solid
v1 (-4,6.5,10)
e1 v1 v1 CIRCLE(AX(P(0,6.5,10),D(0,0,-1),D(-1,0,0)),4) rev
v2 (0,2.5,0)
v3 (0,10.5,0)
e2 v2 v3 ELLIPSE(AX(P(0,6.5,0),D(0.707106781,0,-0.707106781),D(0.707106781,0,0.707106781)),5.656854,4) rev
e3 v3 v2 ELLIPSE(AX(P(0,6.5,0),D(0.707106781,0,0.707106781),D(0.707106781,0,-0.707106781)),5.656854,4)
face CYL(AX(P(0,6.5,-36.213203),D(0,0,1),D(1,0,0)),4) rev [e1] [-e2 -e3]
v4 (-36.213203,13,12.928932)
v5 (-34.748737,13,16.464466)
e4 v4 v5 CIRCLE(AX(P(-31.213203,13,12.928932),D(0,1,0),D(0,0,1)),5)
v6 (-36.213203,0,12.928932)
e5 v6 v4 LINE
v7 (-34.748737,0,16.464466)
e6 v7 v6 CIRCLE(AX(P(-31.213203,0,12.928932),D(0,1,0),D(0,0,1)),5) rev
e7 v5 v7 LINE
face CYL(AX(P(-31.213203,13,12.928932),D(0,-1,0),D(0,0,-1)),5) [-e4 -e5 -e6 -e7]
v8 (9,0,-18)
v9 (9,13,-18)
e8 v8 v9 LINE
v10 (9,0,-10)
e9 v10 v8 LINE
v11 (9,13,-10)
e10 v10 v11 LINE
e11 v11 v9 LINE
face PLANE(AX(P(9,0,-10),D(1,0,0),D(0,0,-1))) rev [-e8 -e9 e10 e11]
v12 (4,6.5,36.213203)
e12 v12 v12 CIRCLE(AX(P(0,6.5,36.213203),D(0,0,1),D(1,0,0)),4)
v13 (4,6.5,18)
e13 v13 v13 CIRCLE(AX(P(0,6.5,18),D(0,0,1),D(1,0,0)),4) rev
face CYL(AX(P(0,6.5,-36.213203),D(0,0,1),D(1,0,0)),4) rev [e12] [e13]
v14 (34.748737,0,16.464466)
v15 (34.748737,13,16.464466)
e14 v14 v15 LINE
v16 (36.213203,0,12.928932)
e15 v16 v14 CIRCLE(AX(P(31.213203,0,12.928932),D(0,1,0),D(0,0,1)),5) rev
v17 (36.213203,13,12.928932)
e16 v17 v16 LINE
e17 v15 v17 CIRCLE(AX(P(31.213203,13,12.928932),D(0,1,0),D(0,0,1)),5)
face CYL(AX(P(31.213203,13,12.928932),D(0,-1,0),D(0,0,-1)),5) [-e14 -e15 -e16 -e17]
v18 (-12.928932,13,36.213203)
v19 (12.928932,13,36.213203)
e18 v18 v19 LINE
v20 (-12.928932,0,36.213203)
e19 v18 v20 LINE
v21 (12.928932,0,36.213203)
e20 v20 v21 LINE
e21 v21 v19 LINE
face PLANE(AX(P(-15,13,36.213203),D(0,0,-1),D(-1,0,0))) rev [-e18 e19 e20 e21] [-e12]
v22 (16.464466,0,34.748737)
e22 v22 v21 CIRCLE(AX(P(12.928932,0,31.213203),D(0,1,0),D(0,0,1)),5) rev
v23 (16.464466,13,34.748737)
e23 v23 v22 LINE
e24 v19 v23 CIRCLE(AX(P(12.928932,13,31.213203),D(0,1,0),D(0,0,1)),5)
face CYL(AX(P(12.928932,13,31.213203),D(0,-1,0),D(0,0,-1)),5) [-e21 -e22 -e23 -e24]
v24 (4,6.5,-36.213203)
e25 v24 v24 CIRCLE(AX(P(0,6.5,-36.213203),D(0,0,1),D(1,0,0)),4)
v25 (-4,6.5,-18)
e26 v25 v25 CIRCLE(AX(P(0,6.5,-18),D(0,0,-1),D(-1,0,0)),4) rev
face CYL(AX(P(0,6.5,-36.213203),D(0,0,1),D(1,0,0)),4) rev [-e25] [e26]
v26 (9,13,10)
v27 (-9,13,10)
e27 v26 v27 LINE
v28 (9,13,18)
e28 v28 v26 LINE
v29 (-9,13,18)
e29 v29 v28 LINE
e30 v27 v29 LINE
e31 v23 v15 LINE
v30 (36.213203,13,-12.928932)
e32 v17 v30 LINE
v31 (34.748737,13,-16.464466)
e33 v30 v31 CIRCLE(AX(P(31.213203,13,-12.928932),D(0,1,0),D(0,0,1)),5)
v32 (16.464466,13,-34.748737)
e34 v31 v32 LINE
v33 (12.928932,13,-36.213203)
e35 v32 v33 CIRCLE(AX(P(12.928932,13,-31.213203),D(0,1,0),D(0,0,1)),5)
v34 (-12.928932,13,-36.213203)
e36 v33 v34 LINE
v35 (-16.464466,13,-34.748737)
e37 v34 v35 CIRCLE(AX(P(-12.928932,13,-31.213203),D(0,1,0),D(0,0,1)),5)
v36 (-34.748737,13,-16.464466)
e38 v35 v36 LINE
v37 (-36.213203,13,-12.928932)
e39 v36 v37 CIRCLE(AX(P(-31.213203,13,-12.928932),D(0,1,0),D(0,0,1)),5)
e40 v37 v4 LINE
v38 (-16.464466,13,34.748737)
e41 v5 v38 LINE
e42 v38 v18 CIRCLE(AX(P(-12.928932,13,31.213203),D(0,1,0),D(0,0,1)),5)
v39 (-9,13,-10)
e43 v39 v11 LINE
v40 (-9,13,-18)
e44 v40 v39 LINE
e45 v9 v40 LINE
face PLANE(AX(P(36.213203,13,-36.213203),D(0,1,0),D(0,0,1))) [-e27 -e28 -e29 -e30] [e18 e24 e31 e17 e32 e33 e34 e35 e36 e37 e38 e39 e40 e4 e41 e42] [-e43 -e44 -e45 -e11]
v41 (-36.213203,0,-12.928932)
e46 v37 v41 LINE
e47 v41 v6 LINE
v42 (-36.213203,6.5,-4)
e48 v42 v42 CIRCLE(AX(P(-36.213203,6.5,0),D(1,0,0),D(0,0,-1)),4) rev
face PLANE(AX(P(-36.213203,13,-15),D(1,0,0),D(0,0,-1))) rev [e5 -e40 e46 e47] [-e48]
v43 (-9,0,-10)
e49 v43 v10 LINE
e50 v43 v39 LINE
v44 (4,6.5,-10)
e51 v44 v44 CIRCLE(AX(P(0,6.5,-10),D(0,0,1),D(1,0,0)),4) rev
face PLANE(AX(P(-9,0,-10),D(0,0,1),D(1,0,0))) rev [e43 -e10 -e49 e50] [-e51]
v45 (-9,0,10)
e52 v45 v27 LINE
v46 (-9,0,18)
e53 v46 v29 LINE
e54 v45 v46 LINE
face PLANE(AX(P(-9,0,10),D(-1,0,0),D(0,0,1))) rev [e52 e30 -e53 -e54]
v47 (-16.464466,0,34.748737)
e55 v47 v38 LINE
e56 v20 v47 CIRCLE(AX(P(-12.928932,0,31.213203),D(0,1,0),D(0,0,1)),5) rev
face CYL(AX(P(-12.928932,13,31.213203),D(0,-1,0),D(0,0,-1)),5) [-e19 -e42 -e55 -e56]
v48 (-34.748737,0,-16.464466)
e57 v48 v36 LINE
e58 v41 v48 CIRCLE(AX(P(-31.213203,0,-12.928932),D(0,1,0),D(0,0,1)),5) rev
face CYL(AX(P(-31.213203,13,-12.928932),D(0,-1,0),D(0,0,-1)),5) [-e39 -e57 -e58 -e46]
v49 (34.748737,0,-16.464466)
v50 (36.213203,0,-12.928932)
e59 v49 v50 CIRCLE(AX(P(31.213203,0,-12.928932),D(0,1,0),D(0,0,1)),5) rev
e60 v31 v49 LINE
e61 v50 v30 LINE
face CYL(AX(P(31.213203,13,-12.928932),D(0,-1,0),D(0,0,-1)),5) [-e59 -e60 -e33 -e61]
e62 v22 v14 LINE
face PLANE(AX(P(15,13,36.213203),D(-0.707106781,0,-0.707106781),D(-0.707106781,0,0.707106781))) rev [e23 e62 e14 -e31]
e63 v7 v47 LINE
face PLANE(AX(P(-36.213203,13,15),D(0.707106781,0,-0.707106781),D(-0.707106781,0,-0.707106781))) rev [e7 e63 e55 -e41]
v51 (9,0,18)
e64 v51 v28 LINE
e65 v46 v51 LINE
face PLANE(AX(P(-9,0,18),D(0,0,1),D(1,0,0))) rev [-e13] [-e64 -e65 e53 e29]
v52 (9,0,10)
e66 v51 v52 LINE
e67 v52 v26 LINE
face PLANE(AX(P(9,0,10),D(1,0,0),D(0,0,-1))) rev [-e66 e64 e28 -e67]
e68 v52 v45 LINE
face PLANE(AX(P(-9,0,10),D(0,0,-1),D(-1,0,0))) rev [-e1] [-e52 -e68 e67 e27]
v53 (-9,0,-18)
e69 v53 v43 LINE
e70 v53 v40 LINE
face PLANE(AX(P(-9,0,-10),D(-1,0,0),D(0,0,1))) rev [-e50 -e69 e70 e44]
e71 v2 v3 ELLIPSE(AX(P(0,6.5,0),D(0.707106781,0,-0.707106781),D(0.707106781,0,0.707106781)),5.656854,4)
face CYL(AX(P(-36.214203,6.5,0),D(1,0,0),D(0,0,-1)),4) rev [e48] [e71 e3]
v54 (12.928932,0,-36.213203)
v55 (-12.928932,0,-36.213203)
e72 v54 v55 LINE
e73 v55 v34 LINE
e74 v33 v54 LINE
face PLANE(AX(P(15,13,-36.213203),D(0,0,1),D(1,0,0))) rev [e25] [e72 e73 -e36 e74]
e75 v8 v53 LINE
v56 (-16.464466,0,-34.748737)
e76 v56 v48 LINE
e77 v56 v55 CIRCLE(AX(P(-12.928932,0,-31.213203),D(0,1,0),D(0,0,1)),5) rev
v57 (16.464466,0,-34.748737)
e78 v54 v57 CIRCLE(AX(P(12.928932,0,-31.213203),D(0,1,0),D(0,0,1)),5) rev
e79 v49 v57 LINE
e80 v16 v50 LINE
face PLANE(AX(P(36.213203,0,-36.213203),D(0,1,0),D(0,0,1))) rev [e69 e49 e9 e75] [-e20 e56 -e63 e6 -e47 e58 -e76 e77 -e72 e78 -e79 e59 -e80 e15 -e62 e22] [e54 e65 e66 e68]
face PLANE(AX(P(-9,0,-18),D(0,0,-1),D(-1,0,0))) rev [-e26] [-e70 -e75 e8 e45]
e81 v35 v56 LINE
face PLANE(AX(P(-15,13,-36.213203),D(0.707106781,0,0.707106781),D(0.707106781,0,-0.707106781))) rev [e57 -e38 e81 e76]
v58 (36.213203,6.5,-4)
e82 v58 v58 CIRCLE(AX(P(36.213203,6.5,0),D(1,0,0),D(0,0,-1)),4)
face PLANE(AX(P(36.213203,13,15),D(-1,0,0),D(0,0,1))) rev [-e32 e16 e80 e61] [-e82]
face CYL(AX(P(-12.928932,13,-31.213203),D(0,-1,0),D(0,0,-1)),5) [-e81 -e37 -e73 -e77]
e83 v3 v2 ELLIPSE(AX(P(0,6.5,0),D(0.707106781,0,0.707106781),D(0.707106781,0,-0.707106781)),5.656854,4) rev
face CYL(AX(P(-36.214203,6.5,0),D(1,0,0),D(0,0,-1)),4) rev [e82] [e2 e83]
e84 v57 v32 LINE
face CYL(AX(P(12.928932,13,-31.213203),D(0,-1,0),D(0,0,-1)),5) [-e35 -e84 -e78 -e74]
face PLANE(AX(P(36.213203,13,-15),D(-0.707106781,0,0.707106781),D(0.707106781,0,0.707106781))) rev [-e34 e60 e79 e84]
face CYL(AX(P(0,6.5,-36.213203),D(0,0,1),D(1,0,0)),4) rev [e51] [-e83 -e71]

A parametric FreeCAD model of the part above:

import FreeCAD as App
import Part
import Sketcher

V = App.Vector


def edges_at(feature, points):
    """Names of the edges that pass closest to the given points."""
    edges = feature.Shape.Edges
    near = lambda p: min(range(len(edges)), key=lambda i: edges[i].distToShape(Part.Vertex(*p))[0])
    return sorted({f"Edge{near(p) + 1}" for p in points})


def add_polygon(sketch, points):
    """Adds a closed chain of lines whose ends are joined by coincident constraints."""
    first, n = sketch.GeometryCount, len(points)
    for a, b in zip(points, points[1:] + points[:1]):
        sketch.addGeometry(Part.LineSegment(App.Vector(*a, 0), App.Vector(*b, 0)), False)
    for i in range(n):
        sketch.addConstraint(Sketcher.Constraint("Coincident", first + i, 2, first + (i + 1) % n, 1))

doc = App.newDocument("Part")
body = doc.addObject("PartDesign::Body", "Body")

sketch1 = body.newObject("Sketcher::SketchObject", "Sketch")
sketch1.AttachmentSupport = (doc.getObject("XZ_Plane"), [""])
sketch1.MapMode = "FlatFace"
add_polygon(sketch1, [(15, 36.213203), (36.213203, 15), (36.213203, -15), (15, -36.213203), (-15, -36.213203), (-36.213203, -15), (-36.213203, 15), (-15, 36.213203)])
sketch1.addConstraint(Sketcher.Constraint("Vertical", 1))
sketch1.addConstraint(Sketcher.Constraint("Horizontal", 3))
sketch1.addConstraint(Sketcher.Constraint("Vertical", 5))
sketch1.addConstraint(Sketcher.Constraint("Horizontal", 7))
sketch1.addConstraint(Sketcher.Constraint("Symmetric", 0, 2, 4, 2, -1, 1))
sketch1.addConstraint(Sketcher.Constraint("Symmetric", 2, 2, 6, 2, -1, 1))
sketch1.addConstraint(Sketcher.Constraint("Perpendicular", 0, 2))
sketch1.addConstraint(Sketcher.Constraint("Perpendicular", 2, 4))
sketch1.addConstraint(Sketcher.Constraint("Perpendicular", 4, 6))
sketch1.addConstraint(Sketcher.Constraint("Horizontal", 1, 2, 4, 2))
sketch1.addConstraint(Sketcher.Constraint("Vertical", 3, 2, 6, 2))
sketch1.addConstraint(Sketcher.Constraint("Equal", 7, 1))
sketch1.addConstraint(Sketcher.Constraint("DistanceX", 3, 2, 3, 1, 30.0))
sketch1.addConstraint(Sketcher.Constraint("Distance", 0, 30.0))
pad1 = body.newObject("PartDesign::Pad", "Pad")
pad1.Profile = sketch1
pad1.Length = 13
pad1.Reversed = True

sketch2 = body.newObject("Sketcher::SketchObject", "Sketch001")
sketch2.AttachmentSupport = (doc.getObject("YZ_Plane"), [""])
sketch2.MapMode = "FlatFace"
sketch2.AttachmentOffset = App.Placement(V(0, 0, 36.213203), App.Rotation())
sketch2.addGeometry(Part.Circle(V(6.5, 0, 0), V(0, 0, 1), 4), False)
sketch2.addConstraint(Sketcher.Constraint("PointOnObject", 0, 3, -1))
sketch2.addConstraint(Sketcher.Constraint("Diameter", 0, 8.0))
sketch2.addConstraint(Sketcher.Constraint("DistanceX", -1, 1, 0, 3, 6.5))
pocket1 = body.newObject("PartDesign::Pocket", "Pocket")
pocket1.Profile = sketch2
pocket1.Type = "UpToFirst"

sketch3 = body.newObject("Sketcher::SketchObject", "Sketch002")
sketch3.AttachmentSupport = (doc.getObject("XY_Plane"), [""])
sketch3.MapMode = "FlatFace"
sketch3.AttachmentOffset = App.Placement(V(0, 0, 36.213203), App.Rotation())
sketch3.addGeometry(Part.Circle(V(0, 6.5, 0), V(0, 0, 1), 4), False)
sketch3.addConstraint(Sketcher.Constraint("PointOnObject", 0, 3, -2))
sketch3.addConstraint(Sketcher.Constraint("Diameter", 0, 8.0))
sketch3.addConstraint(Sketcher.Constraint("DistanceY", -1, 1, 0, 3, 6.5))
pocket2 = body.newObject("PartDesign::Pocket", "Pocket001")
pocket2.Profile = sketch3
pocket2.Type = "ThroughAll"

sketch4 = body.newObject("Sketcher::SketchObject", "Sketch003")
sketch4.AttachmentSupport = (doc.getObject("XZ_Plane"), [""])
sketch4.MapMode = "FlatFace"
sketch4.AttachmentOffset = App.Placement(V(0, 0, -13), App.Rotation())
add_polygon(sketch4, [(-9, 10), (-9, 18), (9, 18), (9, 10)])
add_polygon(sketch4, [(-9, -18), (-9, -10), (9, -10), (9, -18)])
sketch4.addConstraint(Sketcher.Constraint("Vertical", 0))
sketch4.addConstraint(Sketcher.Constraint("Horizontal", 1))
sketch4.addConstraint(Sketcher.Constraint("Vertical", 2))
sketch4.addConstraint(Sketcher.Constraint("Horizontal", 3))
sketch4.addConstraint(Sketcher.Constraint("Vertical", 4))
sketch4.addConstraint(Sketcher.Constraint("Horizontal", 5))
sketch4.addConstraint(Sketcher.Constraint("Vertical", 6))
sketch4.addConstraint(Sketcher.Constraint("Horizontal", 7))
sketch4.addConstraint(Sketcher.Constraint("Symmetric", 2, 2, 4, 2, -1, 1))
sketch4.addConstraint(Sketcher.Constraint("Symmetric", 0, 2, 6, 2, -1, 1))
sketch4.addConstraint(Sketcher.Constraint("Vertical", 3, 2, 4, 2))
sketch4.addConstraint(Sketcher.Constraint("DistanceX", 1, 1, 1, 2, 18.0))
sketch4.addConstraint(Sketcher.Constraint("DistanceY", 0, 1, 0, 2, 8.0))
sketch4.addConstraint(Sketcher.Constraint("DistanceY", -1, 1, 0, 2, 18.0))
pocket3 = body.newObject("PartDesign::Pocket", "Pocket002")
pocket3.Profile = sketch4
pocket3.Length = 13
pocket3.Reversed = True
doc.recompute()

fillet = body.newObject("PartDesign::Fillet", "Fillet")
fillet.Base = (pocket3, edges_at(pocket3, [
    (36.213, 6.5, 15),
    (15, 6.5, 36.213),
    (-15, 6.5, 36.213),
    (-36.213, 6.5, 15),
    (-36.213, 6.5, -15),
    (-15, 6.5, -36.213),
    (15, 6.5, -36.213),
    (36.213, 6.5, -15),
]))
fillet.Radius = 5

doc.recompute()
